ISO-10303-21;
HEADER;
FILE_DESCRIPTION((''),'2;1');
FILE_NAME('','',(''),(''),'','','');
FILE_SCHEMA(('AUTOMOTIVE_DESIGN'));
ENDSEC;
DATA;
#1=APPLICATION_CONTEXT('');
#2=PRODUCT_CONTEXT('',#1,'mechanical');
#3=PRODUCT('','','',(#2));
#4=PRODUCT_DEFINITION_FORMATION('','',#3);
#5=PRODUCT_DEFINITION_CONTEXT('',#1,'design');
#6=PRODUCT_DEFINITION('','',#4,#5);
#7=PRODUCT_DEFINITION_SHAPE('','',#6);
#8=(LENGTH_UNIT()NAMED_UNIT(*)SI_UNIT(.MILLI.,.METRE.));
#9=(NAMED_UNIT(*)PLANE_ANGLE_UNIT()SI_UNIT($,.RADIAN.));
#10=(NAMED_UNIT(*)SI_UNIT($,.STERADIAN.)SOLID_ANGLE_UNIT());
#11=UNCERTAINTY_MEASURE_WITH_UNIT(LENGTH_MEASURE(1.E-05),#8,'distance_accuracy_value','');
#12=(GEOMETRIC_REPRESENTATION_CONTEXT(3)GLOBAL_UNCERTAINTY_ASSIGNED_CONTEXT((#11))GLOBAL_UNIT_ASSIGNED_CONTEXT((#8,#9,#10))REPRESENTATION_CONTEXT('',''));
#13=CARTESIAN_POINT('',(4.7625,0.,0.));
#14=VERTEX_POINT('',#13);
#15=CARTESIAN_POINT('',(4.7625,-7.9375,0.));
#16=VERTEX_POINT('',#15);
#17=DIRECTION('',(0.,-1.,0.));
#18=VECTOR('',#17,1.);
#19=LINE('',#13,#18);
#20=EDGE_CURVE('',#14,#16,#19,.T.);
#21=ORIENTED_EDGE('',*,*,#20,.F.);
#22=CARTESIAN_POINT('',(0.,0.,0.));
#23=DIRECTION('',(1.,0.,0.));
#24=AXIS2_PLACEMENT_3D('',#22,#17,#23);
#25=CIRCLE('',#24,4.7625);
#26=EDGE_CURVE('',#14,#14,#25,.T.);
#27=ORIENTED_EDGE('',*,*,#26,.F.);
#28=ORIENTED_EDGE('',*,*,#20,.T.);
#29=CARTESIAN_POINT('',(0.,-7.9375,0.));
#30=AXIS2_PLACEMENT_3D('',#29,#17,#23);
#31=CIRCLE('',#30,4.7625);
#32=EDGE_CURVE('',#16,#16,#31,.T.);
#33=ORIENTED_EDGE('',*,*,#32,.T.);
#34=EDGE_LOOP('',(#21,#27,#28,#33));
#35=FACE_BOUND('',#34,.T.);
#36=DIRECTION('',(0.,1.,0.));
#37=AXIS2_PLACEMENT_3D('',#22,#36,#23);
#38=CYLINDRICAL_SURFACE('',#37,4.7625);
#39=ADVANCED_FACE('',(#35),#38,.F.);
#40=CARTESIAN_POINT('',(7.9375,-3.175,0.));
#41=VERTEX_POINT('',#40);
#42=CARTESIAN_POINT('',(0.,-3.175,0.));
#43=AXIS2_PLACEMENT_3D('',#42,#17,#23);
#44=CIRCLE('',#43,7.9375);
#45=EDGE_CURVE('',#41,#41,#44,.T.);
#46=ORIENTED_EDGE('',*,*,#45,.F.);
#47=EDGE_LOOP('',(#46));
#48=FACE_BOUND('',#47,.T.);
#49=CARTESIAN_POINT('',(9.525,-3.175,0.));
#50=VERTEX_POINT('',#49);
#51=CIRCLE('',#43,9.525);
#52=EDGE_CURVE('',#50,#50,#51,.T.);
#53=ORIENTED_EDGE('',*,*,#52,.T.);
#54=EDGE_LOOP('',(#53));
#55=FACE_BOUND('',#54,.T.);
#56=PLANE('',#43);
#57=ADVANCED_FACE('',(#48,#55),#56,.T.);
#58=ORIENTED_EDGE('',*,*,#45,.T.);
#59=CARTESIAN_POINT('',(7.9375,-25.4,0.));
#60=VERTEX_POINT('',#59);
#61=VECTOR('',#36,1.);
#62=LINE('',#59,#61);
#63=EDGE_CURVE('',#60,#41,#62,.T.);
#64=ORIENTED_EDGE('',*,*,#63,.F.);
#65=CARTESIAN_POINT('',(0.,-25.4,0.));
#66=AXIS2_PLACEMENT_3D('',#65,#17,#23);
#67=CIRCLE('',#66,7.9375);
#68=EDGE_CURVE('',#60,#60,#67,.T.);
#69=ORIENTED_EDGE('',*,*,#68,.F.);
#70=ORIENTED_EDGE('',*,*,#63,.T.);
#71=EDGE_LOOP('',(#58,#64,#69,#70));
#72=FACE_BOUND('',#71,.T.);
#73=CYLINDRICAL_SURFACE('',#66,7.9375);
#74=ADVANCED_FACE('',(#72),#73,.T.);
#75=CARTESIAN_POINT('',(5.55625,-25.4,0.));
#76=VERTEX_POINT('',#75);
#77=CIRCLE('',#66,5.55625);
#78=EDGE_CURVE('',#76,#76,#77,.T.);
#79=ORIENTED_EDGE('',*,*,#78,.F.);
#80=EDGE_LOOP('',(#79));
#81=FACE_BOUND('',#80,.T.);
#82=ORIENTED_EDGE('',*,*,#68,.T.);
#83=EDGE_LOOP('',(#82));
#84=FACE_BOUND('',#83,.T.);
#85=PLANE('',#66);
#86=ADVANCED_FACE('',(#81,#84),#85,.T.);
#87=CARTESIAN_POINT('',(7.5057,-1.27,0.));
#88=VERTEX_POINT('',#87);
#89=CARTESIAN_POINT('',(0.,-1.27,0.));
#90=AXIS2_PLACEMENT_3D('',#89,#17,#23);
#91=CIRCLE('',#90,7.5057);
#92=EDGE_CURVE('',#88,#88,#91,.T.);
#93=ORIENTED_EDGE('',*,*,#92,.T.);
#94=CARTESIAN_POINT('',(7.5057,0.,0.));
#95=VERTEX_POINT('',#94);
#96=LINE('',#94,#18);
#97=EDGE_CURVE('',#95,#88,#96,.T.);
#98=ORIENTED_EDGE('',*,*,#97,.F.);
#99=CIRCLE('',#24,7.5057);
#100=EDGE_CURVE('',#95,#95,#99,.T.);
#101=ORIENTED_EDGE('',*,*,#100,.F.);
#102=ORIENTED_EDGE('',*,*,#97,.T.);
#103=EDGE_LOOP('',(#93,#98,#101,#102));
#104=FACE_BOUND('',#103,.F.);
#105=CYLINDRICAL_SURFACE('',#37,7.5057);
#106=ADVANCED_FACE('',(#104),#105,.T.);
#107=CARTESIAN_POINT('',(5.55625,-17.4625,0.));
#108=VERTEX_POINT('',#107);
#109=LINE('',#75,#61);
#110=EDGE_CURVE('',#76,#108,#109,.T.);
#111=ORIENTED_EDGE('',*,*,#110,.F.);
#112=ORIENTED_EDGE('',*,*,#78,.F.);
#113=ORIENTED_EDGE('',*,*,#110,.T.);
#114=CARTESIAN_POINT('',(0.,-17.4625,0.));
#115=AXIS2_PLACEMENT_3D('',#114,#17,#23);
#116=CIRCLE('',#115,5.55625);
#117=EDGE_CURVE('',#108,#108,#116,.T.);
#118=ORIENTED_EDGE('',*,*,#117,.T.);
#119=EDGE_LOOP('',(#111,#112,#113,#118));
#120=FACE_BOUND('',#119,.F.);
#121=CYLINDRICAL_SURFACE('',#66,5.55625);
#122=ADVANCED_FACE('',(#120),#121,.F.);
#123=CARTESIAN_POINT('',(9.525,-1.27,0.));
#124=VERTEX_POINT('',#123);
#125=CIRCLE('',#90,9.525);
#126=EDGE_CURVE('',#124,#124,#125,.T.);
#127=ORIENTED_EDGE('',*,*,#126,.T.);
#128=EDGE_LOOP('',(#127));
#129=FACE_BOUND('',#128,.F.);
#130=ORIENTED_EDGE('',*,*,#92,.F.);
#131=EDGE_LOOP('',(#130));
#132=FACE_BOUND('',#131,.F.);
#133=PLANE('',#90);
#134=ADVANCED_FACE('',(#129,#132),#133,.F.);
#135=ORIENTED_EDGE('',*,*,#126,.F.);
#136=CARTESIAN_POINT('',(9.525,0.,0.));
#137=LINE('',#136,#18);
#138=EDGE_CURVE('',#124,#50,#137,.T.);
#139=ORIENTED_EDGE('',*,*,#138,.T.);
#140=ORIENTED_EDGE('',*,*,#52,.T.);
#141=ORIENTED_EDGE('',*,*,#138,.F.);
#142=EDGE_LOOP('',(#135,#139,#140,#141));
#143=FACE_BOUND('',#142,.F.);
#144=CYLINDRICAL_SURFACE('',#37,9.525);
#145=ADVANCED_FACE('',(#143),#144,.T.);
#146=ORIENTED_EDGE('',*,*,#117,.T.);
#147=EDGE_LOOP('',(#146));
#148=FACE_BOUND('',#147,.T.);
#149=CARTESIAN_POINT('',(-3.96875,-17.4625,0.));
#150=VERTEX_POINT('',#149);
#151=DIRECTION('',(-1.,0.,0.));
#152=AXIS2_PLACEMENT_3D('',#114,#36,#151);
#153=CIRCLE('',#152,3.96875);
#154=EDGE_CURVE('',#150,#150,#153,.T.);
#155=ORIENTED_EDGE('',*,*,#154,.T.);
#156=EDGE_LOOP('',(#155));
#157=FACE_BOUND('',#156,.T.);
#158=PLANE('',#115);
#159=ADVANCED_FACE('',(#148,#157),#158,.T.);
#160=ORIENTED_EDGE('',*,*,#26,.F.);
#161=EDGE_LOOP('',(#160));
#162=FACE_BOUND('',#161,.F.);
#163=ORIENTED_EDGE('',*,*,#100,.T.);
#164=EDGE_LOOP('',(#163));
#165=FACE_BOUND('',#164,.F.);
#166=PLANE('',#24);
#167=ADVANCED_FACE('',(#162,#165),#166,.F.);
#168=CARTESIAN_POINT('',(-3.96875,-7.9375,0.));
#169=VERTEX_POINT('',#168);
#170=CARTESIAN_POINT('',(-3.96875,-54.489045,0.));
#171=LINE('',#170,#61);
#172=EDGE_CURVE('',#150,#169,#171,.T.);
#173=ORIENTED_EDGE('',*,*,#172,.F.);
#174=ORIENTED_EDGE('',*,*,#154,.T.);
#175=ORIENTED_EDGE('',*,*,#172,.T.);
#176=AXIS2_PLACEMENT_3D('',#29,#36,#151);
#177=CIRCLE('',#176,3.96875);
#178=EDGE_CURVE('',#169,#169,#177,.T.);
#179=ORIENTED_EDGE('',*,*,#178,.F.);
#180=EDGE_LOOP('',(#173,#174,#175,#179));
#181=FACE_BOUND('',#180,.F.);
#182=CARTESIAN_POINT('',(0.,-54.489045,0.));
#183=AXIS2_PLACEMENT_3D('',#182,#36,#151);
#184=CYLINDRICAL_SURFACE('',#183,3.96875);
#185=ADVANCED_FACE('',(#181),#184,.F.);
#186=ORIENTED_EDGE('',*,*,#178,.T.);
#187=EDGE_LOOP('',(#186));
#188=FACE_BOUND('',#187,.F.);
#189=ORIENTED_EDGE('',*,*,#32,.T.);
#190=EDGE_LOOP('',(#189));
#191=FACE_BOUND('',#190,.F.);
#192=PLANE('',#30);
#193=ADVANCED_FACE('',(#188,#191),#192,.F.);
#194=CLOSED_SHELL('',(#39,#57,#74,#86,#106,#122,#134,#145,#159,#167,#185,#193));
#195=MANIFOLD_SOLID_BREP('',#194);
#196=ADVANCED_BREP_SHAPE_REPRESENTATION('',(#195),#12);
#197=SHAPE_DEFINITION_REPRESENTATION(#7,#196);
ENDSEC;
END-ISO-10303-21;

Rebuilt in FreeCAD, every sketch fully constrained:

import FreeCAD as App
import Part
import Sketcher

V = App.Vector
Q = App.Units.Quantity

doc = App.newDocument("Part")
body = doc.addObject("PartDesign::Body", "Body")

sketch1 = body.newObject("Sketcher::SketchObject", "Sketch")
sketch1.AttachmentSupport = (doc.getObject("XZ_Plane"), [""])
sketch1.MapMode = "FlatFace"
sketch1.addGeometry(Part.Circle(V(0, 0, 0), V(0, 0, 1), 10), False)
sketch1.addConstraint(Sketcher.Constraint("Coincident", 0, 3, -1, 1))
sketch1.addConstraint(Sketcher.Constraint("Diameter", 0, Q("0.75 in")))
pad1 = body.newObject("PartDesign::Pad", "Pad")
pad1.Profile = sketch1
pad1.Length = Q("1 in")

sketch2 = body.newObject("Sketcher::SketchObject", "Sketch001")
sketch2.AttachmentSupport = (doc.getObject("XZ_Plane"), [""])
sketch2.MapMode = "FlatFace"
sketch2.AttachmentOffset = App.Placement(V(0, 0, 1 * 25.4), App.Rotation())
sketch2.addGeometry(Part.Circle(V(0, 0, 0), V(0, 0, 1), 6), False)
sketch2.addConstraint(Sketcher.Constraint("Coincident", 0, 3, -1, 1))
sketch2.addConstraint(Sketcher.Constraint("Diameter", 0, Q("0.4375 in")))
pocket1 = body.newObject("PartDesign::Pocket", "Pocket")
pocket1.Profile = sketch2
pocket1.Length = Q("0.3125 in")

sketch3 = body.newObject("Sketcher::SketchObject", "Sketch002")
sketch3.AttachmentSupport = (doc.getObject("XZ_Plane"), [""])
sketch3.MapMode = "FlatFace"
sketch3.AttachmentOffset = App.Placement(V(0, 0, 1 * 25.4), App.Rotation())
sketch3.addGeometry(Part.Circle(V(0, 0, 0), V(0, 0, 1), 10), False)
sketch3.addGeometry(Part.Circle(V(0, 0, 0), V(0, 0, 1), 8), False)
sketch3.addConstraint(Sketcher.Constraint("Coincident", 0, 3, -1, 1))
sketch3.addConstraint(Sketcher.Constraint("Coincident", 1, 3, -1, 1))
sketch3.addConstraint(Sketcher.Constraint("Diameter", 0, Q("0.75 in")))
sketch3.addConstraint(Sketcher.Constraint("Diameter", 1, Q("0.625 in")))
pocket2 = body.newObject("PartDesign::Pocket", "Pocket001")
pocket2.Profile = sketch3
pocket2.Length = Q("0.875 in")

sketch4 = body.newObject("Sketcher::SketchObject", "Sketch003")
sketch4.AttachmentSupport = (doc.getObject("XZ_Plane"), [""])
sketch4.MapMode = "FlatFace"
sketch4.addGeometry(Part.Circle(V(0, 0, 0), V(0, 0, 1), 10), False)
sketch4.addGeometry(Part.Circle(V(0, 0, 0), V(0, 0, 1), 8), False)
sketch4.addConstraint(Sketcher.Constraint("Coincident", 0, 3, -1, 1))
sketch4.addConstraint(Sketcher.Constraint("Coincident", 1, 3, -1, 1))
sketch4.addConstraint(Sketcher.Constraint("Diameter", 0, Q("0.75 in")))
sketch4.addConstraint(Sketcher.Constraint("Diameter", 1, Q("0.591 in")))
pocket3 = body.newObject("PartDesign::Pocket", "Pocket002")
pocket3.Profile = sketch4
pocket3.Length = Q("0.05 in")
pocket3.Reversed = True

sketch5 = body.newObject("Sketcher::SketchObject", "Sketch004")
sketch5.AttachmentSupport = (doc.getObject("XZ_Plane"), [""])
sketch5.MapMode = "FlatFace"
sketch5.addGeometry(Part.Circle(V(0, 0, 0), V(0, 0, 1), 4.8), False)
sketch5.addConstraint(Sketcher.Constraint("Coincident", 0, 3, -1, 1))
sketch5.addConstraint(Sketcher.Constraint("Diameter", 0, Q("0.375 in")))
pocket4 = body.newObject("PartDesign::Pocket", "Pocket003")
pocket4.Profile = sketch5
pocket4.Length = Q("0.3125 in")
pocket4.Reversed = True

sketch6 = body.newObject("Sketcher::SketchObject", "Sketch005")
sketch6.AttachmentSupport = (doc.getObject("XZ_Plane"), [""])
sketch6.MapMode = "FlatFace"
sketch6.AttachmentOffset = App.Placement(V(0, 0, 0.6875 * 25.4), App.Rotation())
sketch6.addGeometry(Part.Circle(V(0, 0, 0), V(0, 0, 1), 4), False)
sketch6.addConstraint(Sketcher.Constraint("Coincident", 0, 3, -1, 1))
sketch6.addConstraint(Sketcher.Constraint("Diameter", 0, Q("0.3125 in")))
doc.recompute()
hole = body.newObject("PartDesign::Hole", "Hole")
hole.Profile = sketch6
hole.ThreadType = "None"
hole.Diameter = Q("0.3125 in")
hole.DepthType = "ThroughAll"

doc.recompute()
